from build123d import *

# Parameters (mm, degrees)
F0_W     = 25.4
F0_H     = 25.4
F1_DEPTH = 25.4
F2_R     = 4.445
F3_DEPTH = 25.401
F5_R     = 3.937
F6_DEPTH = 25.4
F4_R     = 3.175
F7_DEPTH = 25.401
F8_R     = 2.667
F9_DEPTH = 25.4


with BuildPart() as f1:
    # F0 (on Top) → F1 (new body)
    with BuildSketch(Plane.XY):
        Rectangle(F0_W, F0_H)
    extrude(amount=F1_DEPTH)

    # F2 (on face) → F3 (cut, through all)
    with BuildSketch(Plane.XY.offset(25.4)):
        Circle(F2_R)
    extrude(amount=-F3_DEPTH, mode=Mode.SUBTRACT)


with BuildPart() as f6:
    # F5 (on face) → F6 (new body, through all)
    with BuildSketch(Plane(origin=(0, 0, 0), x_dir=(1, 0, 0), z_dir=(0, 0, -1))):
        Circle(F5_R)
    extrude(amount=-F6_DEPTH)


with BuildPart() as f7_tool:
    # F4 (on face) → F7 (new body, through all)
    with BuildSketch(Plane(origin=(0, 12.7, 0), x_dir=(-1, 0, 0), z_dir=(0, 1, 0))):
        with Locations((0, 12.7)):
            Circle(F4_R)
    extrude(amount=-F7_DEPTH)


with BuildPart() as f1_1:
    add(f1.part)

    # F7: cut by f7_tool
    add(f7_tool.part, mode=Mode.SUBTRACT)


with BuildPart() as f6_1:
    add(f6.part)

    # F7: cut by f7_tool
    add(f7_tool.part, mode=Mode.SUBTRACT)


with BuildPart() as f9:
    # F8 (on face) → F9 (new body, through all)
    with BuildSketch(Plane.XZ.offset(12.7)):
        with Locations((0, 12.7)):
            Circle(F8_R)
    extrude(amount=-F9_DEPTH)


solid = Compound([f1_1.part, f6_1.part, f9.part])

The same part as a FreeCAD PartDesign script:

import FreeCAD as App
import Part
import Sketcher
from FreeCAD import Vector
Q = App.Units.Quantity

doc = App.newDocument("Part")
body = doc.addObject("PartDesign::Body", "Body")

# Sketch on XY plane
sketch1 = doc.addObject("Sketcher::SketchObject", "Sketch")
body.addObject(sketch1)
sketch1.AttachmentSupport = (doc.XY_Plane, [""])
sketch1.MapMode = "FlatFace"
sketch1.addGeometry(Part.LineSegment(Vector(-12.7, 12.7, 0), Vector(-12.7, -12.7, 0)), False)
sketch1.addGeometry(Part.LineSegment(Vector(-12.7, -12.7, 0), Vector(12.7, -12.7, 0)), False)
sketch1.addGeometry(Part.LineSegment(Vector(12.7, -12.7, 0), Vector(12.7, 12.7, 0)), False)
sketch1.addGeometry(Part.LineSegment(Vector(12.7, 12.7, 0), Vector(-12.7, 12.7, 0)), False)
sketch1.addConstraint(Sketcher.Constraint("Coincident", 0, 2, 1, 1))
sketch1.addConstraint(Sketcher.Constraint("Coincident", 1, 2, 2, 1))
sketch1.addConstraint(Sketcher.Constraint("Coincident", 2, 2, 3, 1))
sketch1.addConstraint(Sketcher.Constraint("Coincident", 3, 2, 0, 1))
sketch1.addConstraint(Sketcher.Constraint("Vertical", 0))
sketch1.addConstraint(Sketcher.Constraint("Horizontal", 1))
sketch1.addConstraint(Sketcher.Constraint("Vertical", 2))
sketch1.addConstraint(Sketcher.Constraint("Horizontal", 3))
sketch1.addConstraint(Sketcher.Constraint("Symmetric", 0, 2, 2, 2, -1, 1))
sketch1.addConstraint(Sketcher.Constraint("Equal", 3, 0))
sketch1.addConstraint(Sketcher.Constraint("DistanceX", 1, 1, 1, 2, Q("1 in")))
pad1 = doc.addObject("PartDesign::Pad", "Pad")
body.addObject(pad1)
pad1.Profile = sketch1
pad1.Length = Q("1 in")

# Sketch on XY plane
sketch2 = doc.addObject("Sketcher::SketchObject", "Sketch001")
body.addObject(sketch2)
sketch2.AttachmentSupport = (doc.XY_Plane, [""])
sketch2.MapMode = "FlatFace"
sketch2.AttachmentOffset = App.Placement(Vector(0, 0, 1 * 25.4), App.Rotation())
sketch2.addGeometry(Part.Circle(Vector(0, 0, 0), Vector(0, 0, 1), 4.445), False)
sketch2.addConstraint(Sketcher.Constraint("Coincident", 0, 3, -1, 1))
sketch2.addConstraint(Sketcher.Constraint("Diameter", 0, Q("0.35 in")))
pocket1 = doc.addObject("PartDesign::Pocket", "Pocket")
body.addObject(pocket1)
pocket1.Profile = sketch2
pocket1.Type = "ThroughAll"
body2 = doc.addObject("PartDesign::Body", "Body001")

# Sketch on XY plane
sketch3 = doc.addObject("Sketcher::SketchObject", "Sketch002")
body2.addObject(sketch3)
sketch3.AttachmentSupport = (doc.getObject("XY_Plane001"), [""])
sketch3.MapMode = "FlatFace"
sketch3.addGeometry(Part.Circle(Vector(0, 0, 0), Vector(0, 0, 1), 3.937), False)
sketch3.addConstraint(Sketcher.Constraint("Coincident", 0, 3, -1, 1))
sketch3.addConstraint(Sketcher.Constraint("Diameter", 0, Q("0.31 in")))
pad2 = doc.addObject("PartDesign::Pad", "Pad001")
body2.addObject(pad2)
pad2.Profile = sketch3
pad2.Length = Q("1 in")
body3 = doc.addObject("PartDesign::Body", "Body002")

# Sketch on XZ plane
sketch4 = doc.addObject("Sketcher::SketchObject", "Sketch003")
body3.addObject(sketch4)
sketch4.AttachmentSupport = (doc.getObject("XZ_Plane002"), [""])
sketch4.MapMode = "FlatFace"
sketch4.AttachmentOffset = App.Placement(Vector(0, 0, -0.5 * 25.4), App.Rotation())
sketch4.addGeometry(Part.Circle(Vector(0, 12.7, 0), Vector(0, 0, 1), 3.175), False)
sketch4.addConstraint(Sketcher.Constraint("PointOnObject", 0, 3, -2))
sketch4.addConstraint(Sketcher.Constraint("Diameter", 0, Q("0.25 in")))
sketch4.addConstraint(Sketcher.Constraint("DistanceY", -1, 1, 0, 3, Q("0.5 in")))
pad3 = doc.addObject("PartDesign::Pad", "Pad002")
body3.addObject(pad3)
pad3.Profile = sketch4
pad3.Length = 25.401
doc.recompute()

body4 = doc.addObject("PartDesign::Body", "Body003")
body4.BaseFeature = body3
boolean = doc.addObject("PartDesign::Boolean", "Boolean")
body.addObject(boolean)
boolean.Type = "Cut"
boolean.addObjects([body4])
doc.recompute()

boolean2 = doc.addObject("PartDesign::Boolean", "Boolean001")
body2.addObject(boolean2)
boolean2.Type = "Cut"
boolean2.addObjects([body3])
body5 = doc.addObject("PartDesign::Body", "Body004")

# Sketch on XZ plane
sketch5 = doc.addObject("Sketcher::SketchObject", "Sketch004")
body5.addObject(sketch5)
sketch5.AttachmentSupport = (doc.getObject("XZ_Plane004"), [""])
sketch5.MapMode = "FlatFace"
sketch5.AttachmentOffset = App.Placement(Vector(0, 0, 0.5 * 25.4), App.Rotation())
sketch5.addGeometry(Part.Circle(Vector(0, 12.7, 0), Vector(0, 0, 1), 2.667), False)
sketch5.addConstraint(Sketcher.Constraint("PointOnObject", 0, 3, -2))
sketch5.addConstraint(Sketcher.Constraint("Diameter", 0, Q("0.21 in")))
sketch5.addConstraint(Sketcher.Constraint("DistanceY", -1, 1, 0, 3, Q("0.5 in")))
pad4 = doc.addObject("PartDesign::Pad", "Pad003")
body5.addObject(pad4)
pad4.Profile = sketch5
pad4.Length = Q("1 in")
pad4.Reversed = True

doc.recompute()
